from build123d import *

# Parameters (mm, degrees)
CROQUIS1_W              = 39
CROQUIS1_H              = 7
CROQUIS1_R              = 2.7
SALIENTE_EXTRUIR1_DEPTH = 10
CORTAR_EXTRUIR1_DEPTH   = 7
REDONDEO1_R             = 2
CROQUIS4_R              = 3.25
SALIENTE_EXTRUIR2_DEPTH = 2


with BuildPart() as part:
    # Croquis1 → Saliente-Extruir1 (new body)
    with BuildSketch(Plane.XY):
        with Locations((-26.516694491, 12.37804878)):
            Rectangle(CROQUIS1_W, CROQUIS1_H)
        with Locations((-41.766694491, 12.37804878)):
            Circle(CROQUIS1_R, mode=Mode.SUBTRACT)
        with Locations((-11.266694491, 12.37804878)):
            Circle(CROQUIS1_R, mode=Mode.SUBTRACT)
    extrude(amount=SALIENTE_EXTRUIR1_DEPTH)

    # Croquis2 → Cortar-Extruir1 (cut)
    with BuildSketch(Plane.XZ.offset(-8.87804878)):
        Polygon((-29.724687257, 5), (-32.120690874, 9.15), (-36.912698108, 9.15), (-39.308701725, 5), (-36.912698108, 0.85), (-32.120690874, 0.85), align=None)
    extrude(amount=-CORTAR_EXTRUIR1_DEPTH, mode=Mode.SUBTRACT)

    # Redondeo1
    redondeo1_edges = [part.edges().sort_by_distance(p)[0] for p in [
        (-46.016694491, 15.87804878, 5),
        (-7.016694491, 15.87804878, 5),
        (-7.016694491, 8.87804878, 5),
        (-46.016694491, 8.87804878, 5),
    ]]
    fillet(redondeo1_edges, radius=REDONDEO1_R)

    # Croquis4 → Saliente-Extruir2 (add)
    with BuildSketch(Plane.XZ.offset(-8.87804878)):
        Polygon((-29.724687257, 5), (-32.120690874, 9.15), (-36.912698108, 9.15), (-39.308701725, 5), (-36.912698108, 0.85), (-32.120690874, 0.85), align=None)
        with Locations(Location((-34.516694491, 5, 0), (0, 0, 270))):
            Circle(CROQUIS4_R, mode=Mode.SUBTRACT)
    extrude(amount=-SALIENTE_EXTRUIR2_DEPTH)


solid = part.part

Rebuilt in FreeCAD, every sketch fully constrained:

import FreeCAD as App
import Part
import Sketcher
from FreeCAD import Vector
Q = App.Units.Quantity


def edges_at(feature, points):
    """Names of the edges that pass closest to the given points."""
    edges = feature.Shape.Edges
    near = lambda p: min(range(len(edges)), key=lambda i: edges[i].distToShape(Part.Vertex(*p))[0])
    return sorted({f"Edge{near(p) + 1}" for p in points})


def add_polygon(sketch, points):
    """Adds a closed chain of lines whose ends are joined by coincident constraints."""
    first, n = sketch.GeometryCount, len(points)
    for a, b in zip(points, points[1:] + points[:1]):
        sketch.addGeometry(Part.LineSegment(App.Vector(*a, 0), App.Vector(*b, 0)), False)
    for i in range(n):
        sketch.addConstraint(Sketcher.Constraint("Coincident", first + i, 2, first + (i + 1) % n, 1))

doc = App.newDocument("Part")
body = doc.addObject("PartDesign::Body", "Body")

sketch1 = body.newObject("Sketcher::SketchObject", "Sketch")
sketch1.AttachmentSupport = (doc.getObject("XY_Plane"), [""])
sketch1.MapMode = "FlatFace"
add_polygon(sketch1, [(-46, 15.9), (-46, 8.9), (-7, 8.9), (-7, 15.9)])
sketch1.addGeometry(Part.Circle(Vector(-41.8, 12.4, 0), Vector(0, 0, 1), 2.7), False)
sketch1.addGeometry(Part.Circle(Vector(-11.3, 12.4, 0), Vector(0, 0, 1), 2.7), False)
sketch1.addConstraint([
    Sketcher.Constraint("Vertical", 0),
    Sketcher.Constraint("Horizontal", 1),
    Sketcher.Constraint("Vertical", 2),
    Sketcher.Constraint("Horizontal", 3),
    Sketcher.Constraint("Equal", 4, 5),
    Sketcher.Constraint("Horizontal", 4, 3, 5, 3),
    Sketcher.Constraint("Diameter", 4, Q("5.4 mm")),
    Sketcher.Constraint("DistanceX", 1, 1, 1, 2, Q("39 mm")),
    Sketcher.Constraint("DistanceY", 0, 2, 0, 1, Q("7 mm")),
    Sketcher.Constraint("DistanceX", 4, 3, 5, 3, Q("30.5 mm")),
    Sketcher.Constraint("DistanceY", 0, 2, 4, 3, Q("3.5 mm")),
    Sketcher.Constraint("DistanceX", 0, 2, 4, 3, Q("4.25 mm")),
    Sketcher.Constraint("DistanceY", -1, 1, 4, 3, Q("12.378049 mm")),
    Sketcher.Constraint("DistanceX", 4, 3, -1, 1, Q("41.766694 mm")),
])
pad1 = body.newObject("PartDesign::Pad", "Pad")
pad1.Profile = sketch1
pad1.Length = 10

sketch2 = body.newObject("Sketcher::SketchObject", "Sketch001")
sketch2.AttachmentSupport = (doc.getObject("XZ_Plane"), [""])
sketch2.MapMode = "FlatFace"
sketch2.AttachmentOffset = App.Placement(Vector(0, 0, -8.878049), App.Rotation())
add_polygon(sketch2, [(-29.7, 5), (-32.1, 9.2), (-36.9, 9.2), (-39.3, 5), (-36.9, 0.8), (-32.1, 0.8)])
sketch2.addConstraint([
    Sketcher.Constraint("Horizontal", 1),
    Sketcher.Constraint("Horizontal", 4),
    Sketcher.Constraint("Parallel", 0, 3),
    Sketcher.Constraint("Parallel", 2, 5),
    Sketcher.Constraint("Horizontal", 2, 2, 5, 2),
    Sketcher.Constraint("Vertical", 1, 2, 3, 2),
    Sketcher.Constraint("Vertical", 0, 2, 4, 2),
    Sketcher.Constraint("Angle", 0, Q("120 deg")),
    Sketcher.Constraint("DistanceY", -1, 1, 2, 2, Q("5 mm")),
    Sketcher.Constraint("DistanceY", 3, 2, 1, 2, Q("8.3 mm")),
    Sketcher.Constraint("DistanceX", 1, 2, -1, 1, Q("36.912698 mm")),
    Sketcher.Constraint("DistanceX", 1, 2, 1, 1, Q("4.792007 mm")),
])
pocket1 = body.newObject("PartDesign::Pocket", "Pocket")
pocket1.Profile = sketch2
pocket1.Length = 7
doc.recompute()

fillet = body.newObject("PartDesign::Fillet", "Fillet")
fillet.Base = (pocket1, edges_at(pocket1, [
    (-46.017, 15.878, 5),
    (-7.017, 15.878, 5),
    (-7.017, 8.878, 5),
    (-46.017, 8.878, 5),
]))
fillet.Radius = 2

sketch3 = body.newObject("Sketcher::SketchObject", "Sketch002")
sketch3.AttachmentSupport = (doc.getObject("XZ_Plane"), [""])
sketch3.MapMode = "FlatFace"
sketch3.AttachmentOffset = App.Placement(Vector(0, 0, -8.878049), App.Rotation())
add_polygon(sketch3, [(-29.7, 5), (-32.1, 9.2), (-36.9, 9.2), (-39.3, 5), (-36.9, 0.8), (-32.1, 0.8)])
sketch3.addGeometry(Part.Circle(Vector(-34.5, 5, 0), Vector(0, 0, 1), 3.2), False)
sketch3.addConstraint([
    Sketcher.Constraint("Horizontal", 1),
    Sketcher.Constraint("Horizontal", 4),
    Sketcher.Constraint("Parallel", 0, 3),
    Sketcher.Constraint("Parallel", 2, 5),
    Sketcher.Constraint("Horizontal", 6, 3, 2, 2),
    Sketcher.Constraint("Horizontal", 2, 2, 5, 2),
    Sketcher.Constraint("Vertical", 1, 2, 3, 2),
    Sketcher.Constraint("Vertical", 0, 2, 4, 2),
    Sketcher.Constraint("Diameter", 6, Q("6.5 mm")),
    Sketcher.Constraint("Angle", 0, Q("120 deg")),
    Sketcher.Constraint("DistanceY", -1, 1, 6, 3, Q("5 mm")),
    Sketcher.Constraint("DistanceY", 3, 2, 1, 2, Q("8.3 mm")),
    Sketcher.Constraint("DistanceX", 1, 2, -1, 1, Q("36.912698 mm")),
    Sketcher.Constraint("DistanceX", 1, 2, 1, 1, Q("4.792007 mm")),
    Sketcher.Constraint("DistanceX", 6, 3, -1, 1, Q("34.516694 mm")),
])
pad2 = body.newObject("PartDesign::Pad", "Pad001")
pad2.Profile = sketch3
pad2.Length = 2
pad2.Reversed = True

doc.recompute()
